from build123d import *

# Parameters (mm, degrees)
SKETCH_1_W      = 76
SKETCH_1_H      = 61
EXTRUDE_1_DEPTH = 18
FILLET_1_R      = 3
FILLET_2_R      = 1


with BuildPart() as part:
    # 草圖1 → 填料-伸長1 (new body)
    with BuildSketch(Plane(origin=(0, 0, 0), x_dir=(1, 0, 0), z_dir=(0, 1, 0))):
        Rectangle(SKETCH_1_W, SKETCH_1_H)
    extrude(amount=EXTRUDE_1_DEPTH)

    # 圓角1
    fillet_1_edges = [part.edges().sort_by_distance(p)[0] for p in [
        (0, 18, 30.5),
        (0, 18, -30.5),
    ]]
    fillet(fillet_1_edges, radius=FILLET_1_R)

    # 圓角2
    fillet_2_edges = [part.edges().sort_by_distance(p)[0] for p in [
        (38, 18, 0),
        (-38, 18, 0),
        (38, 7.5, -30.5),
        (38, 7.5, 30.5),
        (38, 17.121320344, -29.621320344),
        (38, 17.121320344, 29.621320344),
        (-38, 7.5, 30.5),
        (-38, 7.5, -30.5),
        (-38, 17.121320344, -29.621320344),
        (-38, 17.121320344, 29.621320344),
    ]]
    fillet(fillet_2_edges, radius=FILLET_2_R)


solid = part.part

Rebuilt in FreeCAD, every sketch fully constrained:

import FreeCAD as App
import Part
import Sketcher
from FreeCAD import Vector
Q = App.Units.Quantity


def edges_at(feature, points):
    """Names of the edges that pass closest to the given points."""
    edges = feature.Shape.Edges
    near = lambda p: min(range(len(edges)), key=lambda i: edges[i].distToShape(Part.Vertex(*p))[0])
    return sorted({f"Edge{near(p) + 1}" for p in points})


def add_polygon(sketch, points):
    """Adds a closed chain of lines whose ends are joined by coincident constraints."""
    first, n = sketch.GeometryCount, len(points)
    for a, b in zip(points, points[1:] + points[:1]):
        sketch.addGeometry(Part.LineSegment(App.Vector(*a, 0), App.Vector(*b, 0)), False)
    for i in range(n):
        sketch.addConstraint(Sketcher.Constraint("Coincident", first + i, 2, first + (i + 1) % n, 1))

doc = App.newDocument("Part")
body = doc.addObject("PartDesign::Body", "Body")

sketch1 = doc.addObject("Sketcher::SketchObject", "Sketch")
body.addObject(sketch1)
sketch1.AttachmentSupport = (doc.XZ_Plane, [""])
sketch1.MapMode = "FlatFace"
add_polygon(sketch1, [(-38, -30.5), (-38, 30.5), (38, 30.5), (38, -30.5)])
sketch1.addConstraint([
    Sketcher.Constraint("Vertical", 0),
    Sketcher.Constraint("Horizontal", 1),
    Sketcher.Constraint("Vertical", 2),
    Sketcher.Constraint("Horizontal", 3),
    Sketcher.Constraint("Symmetric", 0, 2, 2, 2, -1, 1),
    Sketcher.Constraint("DistanceX", 1, 1, 1, 2, Q("76 mm")),
    Sketcher.Constraint("DistanceY", 0, 1, 0, 2, Q("61 mm")),
])
pad1 = doc.addObject("PartDesign::Pad", "Pad")
body.addObject(pad1)
pad1.Profile = sketch1
pad1.Length = 18
pad1.Reversed = True
doc.recompute()

fillet = doc.addObject("PartDesign::Fillet", "Fillet")
body.addObject(fillet)
fillet.Base = (pad1, edges_at(pad1, [(0, 18, 30.5), (0, 18, -30.5)]))
fillet.Radius = 3
doc.recompute()

fillet2 = doc.addObject("PartDesign::Fillet", "Fillet001")
body.addObject(fillet2)
fillet2.Base = (fillet, edges_at(fillet, [
    (38, 18, 0),
    (-38, 18, 0),
    (38, 7.5, -30.5),
    (38, 7.5, 30.5),
    (38, 17.121, -29.621),
    (38, 17.121, 29.621),
    (-38, 7.5, 30.5),
    (-38, 7.5, -30.5),
    (-38, 17.121, -29.621),
    (-38, 17.121, 29.621),
]))
fillet2.Radius = 1

doc.recompute()
